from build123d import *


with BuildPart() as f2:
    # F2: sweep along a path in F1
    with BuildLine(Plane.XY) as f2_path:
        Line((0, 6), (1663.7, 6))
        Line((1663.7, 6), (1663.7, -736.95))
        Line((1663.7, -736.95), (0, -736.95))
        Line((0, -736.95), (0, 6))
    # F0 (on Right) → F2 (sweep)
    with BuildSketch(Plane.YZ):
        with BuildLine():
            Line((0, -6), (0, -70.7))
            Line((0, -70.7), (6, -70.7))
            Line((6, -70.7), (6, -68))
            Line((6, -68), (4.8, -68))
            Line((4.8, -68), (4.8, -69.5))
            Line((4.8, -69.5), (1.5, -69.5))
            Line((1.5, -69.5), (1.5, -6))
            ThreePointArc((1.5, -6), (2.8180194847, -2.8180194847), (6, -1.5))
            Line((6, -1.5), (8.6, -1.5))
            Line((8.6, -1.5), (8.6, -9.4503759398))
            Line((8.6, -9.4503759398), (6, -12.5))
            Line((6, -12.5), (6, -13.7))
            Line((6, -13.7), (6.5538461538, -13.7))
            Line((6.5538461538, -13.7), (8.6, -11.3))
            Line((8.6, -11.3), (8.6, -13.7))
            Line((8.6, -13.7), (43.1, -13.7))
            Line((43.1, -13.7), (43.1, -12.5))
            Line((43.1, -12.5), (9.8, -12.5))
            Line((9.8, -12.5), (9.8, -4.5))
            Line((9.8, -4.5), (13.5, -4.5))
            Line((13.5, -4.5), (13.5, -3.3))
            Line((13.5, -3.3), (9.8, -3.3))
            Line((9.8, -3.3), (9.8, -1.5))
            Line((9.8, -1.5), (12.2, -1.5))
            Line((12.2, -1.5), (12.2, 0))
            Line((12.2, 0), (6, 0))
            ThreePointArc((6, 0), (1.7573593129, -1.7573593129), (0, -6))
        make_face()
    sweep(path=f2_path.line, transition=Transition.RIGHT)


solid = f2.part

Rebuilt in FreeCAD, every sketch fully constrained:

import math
import FreeCAD as App
import Part
import Sketcher

doc = App.newDocument("Part")
params = doc.addObject("Spreadsheet::Sheet", "Params")
for row, (alias, value) in enumerate([
    ("sketch1_radius", "6 mm"),
    ("sketch1_radius2", "4.5 mm"),
    ("sketch1_height", "8 mm"),
    ("sketch1_width", "1.2 mm"),
    ("sketch1_width2", "2.6 mm"),
    ("sketch2_width", "1663.7 mm"),
    ("sketch2_height", "742.95 mm"),
], start=1):
    params.set(f"A{row}", alias)
    params.set(f"B{row}", "=" + value)
    params.setAlias(f"B{row}", alias)

body = doc.addObject("PartDesign::Body", "Body")

sketch1 = doc.addObject("Sketcher::SketchObject", "Sketch")
body.addObject(sketch1)
sketch1.AttachmentSupport = (doc.YZ_Plane, [""])
sketch1.MapMode = "FlatFace"
sketch1.addGeometry(Part.LineSegment(App.Vector(0, -6, 0), App.Vector(0, -70.7, 0)), False)
sketch1.addGeometry(Part.LineSegment(App.Vector(0, -70.7, 0), App.Vector(6, -70.7, 0)), False)
sketch1.addGeometry(Part.LineSegment(App.Vector(6, -70.7, 0), App.Vector(6, -68, 0)), False)
sketch1.addGeometry(Part.LineSegment(App.Vector(6, -68, 0), App.Vector(4.8, -68, 0)), False)
sketch1.addGeometry(Part.LineSegment(App.Vector(4.8, -68, 0), App.Vector(4.8, -69.5, 0)), False)
sketch1.addGeometry(Part.LineSegment(App.Vector(4.8, -69.5, 0), App.Vector(1.5, -69.5, 0)), False)
sketch1.addGeometry(Part.LineSegment(App.Vector(1.5, -69.5, 0), App.Vector(1.5, -6, 0)), False)
sketch1.addGeometry(Part.ArcOfCircle(Part.Circle(App.Vector(6, -6, 0), App.Vector(0, 0, 1), 4.5), math.radians(90), math.radians(180)), False)
sketch1.addGeometry(Part.LineSegment(App.Vector(6, -1.5, 0), App.Vector(8.6, -1.5, 0)), False)
sketch1.addGeometry(Part.LineSegment(App.Vector(8.6, -1.5, 0), App.Vector(8.6, -9.450376, 0)), False)
sketch1.addGeometry(Part.LineSegment(App.Vector(8.6, -9.450376, 0), App.Vector(6, -12.5, 0)), False)
sketch1.addGeometry(Part.LineSegment(App.Vector(6, -12.5, 0), App.Vector(6, -13.7, 0)), False)
sketch1.addGeometry(Part.LineSegment(App.Vector(6, -13.7, 0), App.Vector(6.553846, -13.7, 0)), False)
sketch1.addGeometry(Part.LineSegment(App.Vector(6.553846, -13.7, 0), App.Vector(8.6, -11.3, 0)), False)
sketch1.addGeometry(Part.LineSegment(App.Vector(8.6, -11.3, 0), App.Vector(8.6, -13.7, 0)), False)
sketch1.addGeometry(Part.LineSegment(App.Vector(8.6, -13.7, 0), App.Vector(43.1, -13.7, 0)), False)
sketch1.addGeometry(Part.LineSegment(App.Vector(43.1, -13.7, 0), App.Vector(43.1, -12.5, 0)), False)
sketch1.addGeometry(Part.LineSegment(App.Vector(43.1, -12.5, 0), App.Vector(9.8, -12.5, 0)), False)
sketch1.addGeometry(Part.LineSegment(App.Vector(9.8, -12.5, 0), App.Vector(9.8, -4.5, 0)), False)
sketch1.addGeometry(Part.LineSegment(App.Vector(9.8, -4.5, 0), App.Vector(13.5, -4.5, 0)), False)
sketch1.addGeometry(Part.LineSegment(App.Vector(13.5, -4.5, 0), App.Vector(13.5, -3.3, 0)), False)
sketch1.addGeometry(Part.LineSegment(App.Vector(13.5, -3.3, 0), App.Vector(9.8, -3.3, 0)), False)
sketch1.addGeometry(Part.LineSegment(App.Vector(9.8, -3.3, 0), App.Vector(9.8, -1.5, 0)), False)
sketch1.addGeometry(Part.LineSegment(App.Vector(9.8, -1.5, 0), App.Vector(12.2, -1.5, 0)), False)
sketch1.addGeometry(Part.LineSegment(App.Vector(12.2, -1.5, 0), App.Vector(12.2, 0, 0)), False)
sketch1.addGeometry(Part.LineSegment(App.Vector(12.2, 0, 0), App.Vector(6, 0, 0)), False)
sketch1.addGeometry(Part.ArcOfCircle(Part.Circle(App.Vector(6, -6, 0), App.Vector(0, 0, 1), 6), math.radians(90), math.radians(180)), False)
sketch1.addConstraint(Sketcher.Constraint("Coincident", 0, 2, 1, 1))
sketch1.addConstraint(Sketcher.Constraint("Coincident", 1, 2, 2, 1))
sketch1.addConstraint(Sketcher.Constraint("Coincident", 2, 2, 3, 1))
sketch1.addConstraint(Sketcher.Constraint("Coincident", 3, 2, 4, 1))
sketch1.addConstraint(Sketcher.Constraint("Coincident", 4, 2, 5, 1))
sketch1.addConstraint(Sketcher.Constraint("Coincident", 5, 2, 6, 1))
sketch1.addConstraint(Sketcher.Constraint("Tangent", 6, 2, 7, 2))
sketch1.addConstraint(Sketcher.Constraint("Tangent", 7, 1, 8, 1))
sketch1.addConstraint(Sketcher.Constraint("Coincident", 8, 2, 9, 1))
sketch1.addConstraint(Sketcher.Constraint("Coincident", 9, 2, 10, 1))
sketch1.addConstraint(Sketcher.Constraint("Coincident", 10, 2, 11, 1))
sketch1.addConstraint(Sketcher.Constraint("Coincident", 11, 2, 12, 1))
sketch1.addConstraint(Sketcher.Constraint("Coincident", 12, 2, 13, 1))
sketch1.addConstraint(Sketcher.Constraint("Coincident", 13, 2, 14, 1))
sketch1.addConstraint(Sketcher.Constraint("Coincident", 14, 2, 15, 1))
sketch1.addConstraint(Sketcher.Constraint("Coincident", 15, 2, 16, 1))
sketch1.addConstraint(Sketcher.Constraint("Coincident", 16, 2, 17, 1))
sketch1.addConstraint(Sketcher.Constraint("Coincident", 17, 2, 18, 1))
sketch1.addConstraint(Sketcher.Constraint("Coincident", 18, 2, 19, 1))
sketch1.addConstraint(Sketcher.Constraint("Coincident", 19, 2, 20, 1))
sketch1.addConstraint(Sketcher.Constraint("Coincident", 20, 2, 21, 1))
sketch1.addConstraint(Sketcher.Constraint("Coincident", 21, 2, 22, 1))
sketch1.addConstraint(Sketcher.Constraint("Coincident", 22, 2, 23, 1))
sketch1.addConstraint(Sketcher.Constraint("Coincident", 23, 2, 24, 1))
sketch1.addConstraint(Sketcher.Constraint("Coincident", 24, 2, 25, 1))
sketch1.addConstraint(Sketcher.Constraint("Tangent", 25, 2, 26, 1))
sketch1.addConstraint(Sketcher.Constraint("Tangent", 26, 2, 0, 1))
sketch1.addConstraint(Sketcher.Constraint("Vertical", 0))
sketch1.addConstraint(Sketcher.Constraint("Horizontal", 1))
sketch1.addConstraint(Sketcher.Constraint("Vertical", 2))
sketch1.addConstraint(Sketcher.Constraint("Horizontal", 3))
sketch1.addConstraint(Sketcher.Constraint("Vertical", 4))
sketch1.addConstraint(Sketcher.Constraint("Horizontal", 5))
sketch1.addConstraint(Sketcher.Constraint("Vertical", 6))
sketch1.addConstraint(Sketcher.Constraint("Horizontal", 8))
sketch1.addConstraint(Sketcher.Constraint("Vertical", 9))
sketch1.addConstraint(Sketcher.Constraint("Vertical", 11))
sketch1.addConstraint(Sketcher.Constraint("Horizontal", 12))
sketch1.addConstraint(Sketcher.Constraint("Vertical", 14))
sketch1.addConstraint(Sketcher.Constraint("Horizontal", 15))
sketch1.addConstraint(Sketcher.Constraint("Vertical", 16))
sketch1.addConstraint(Sketcher.Constraint("Horizontal", 17))
sketch1.addConstraint(Sketcher.Constraint("Vertical", 18))
sketch1.addConstraint(Sketcher.Constraint("Horizontal", 19))
sketch1.addConstraint(Sketcher.Constraint("Vertical", 20))
sketch1.addConstraint(Sketcher.Constraint("Horizontal", 21))
sketch1.addConstraint(Sketcher.Constraint("Vertical", 22))
sketch1.addConstraint(Sketcher.Constraint("Horizontal", 23))
sketch1.addConstraint(Sketcher.Constraint("Vertical", 24))
sketch1.addConstraint(Sketcher.Constraint("Horizontal", 25))
sketch1.addConstraint(Sketcher.Constraint("Coincident", 26, 3, 7, 3))
sketch1.addConstraint(Sketcher.Constraint("PointOnObject", 0, 2, -2))
sketch1.addConstraint(Sketcher.Constraint("PointOnObject", 24, 2, -1))
sketch1.addConstraint(Sketcher.Constraint("Parallel", 10, 13))
sketch1.addConstraint(Sketcher.Constraint("Horizontal", 12, 2, 14, 2))
sketch1.addConstraint(Sketcher.Constraint("Horizontal", 10, 2, 16, 2))
sketch1.addConstraint(Sketcher.Constraint("Horizontal", 8, 2, 22, 2))
sketch1.addConstraint(Sketcher.Constraint("Vertical", 26, 3, 1, 2))
sketch1.addConstraint(Sketcher.Constraint("Vertical", 7, 1, 10, 2))
sketch1.addConstraint(Sketcher.Constraint("Vertical", 9, 2, 13, 2))
sketch1.addConstraint(Sketcher.Constraint("Vertical", 18, 2, 21, 2))
sketch1.addConstraint(Sketcher.Constraint("Equal", 3, 11))
sketch1.addConstraint(Sketcher.Constraint("Equal", 23, 14))
sketch1.addConstraint(Sketcher.Constraint("Equal", 16, 20))
sketch1.addConstraint(Sketcher.Constraint("Equal", 4, 24))
sketch1.addConstraint(Sketcher.Constraint("Radius", 26, 6.0))
sketch1.addConstraint(Sketcher.Constraint("Radius", 7, 4.5))
sketch1.addConstraint(Sketcher.Constraint("DistanceY", 18, 1, 18, 2, 8.0))
sketch1.addConstraint(Sketcher.Constraint("DistanceX", 3, 2, 3, 1, 1.2))
sketch1.addConstraint(Sketcher.Constraint("DistanceX", 8, 1, 8, 2, 2.6))
sketch1.addConstraint(Sketcher.Constraint("DistanceX", 15, 1, 15, 2, 34.5))
sketch1.addConstraint(Sketcher.Constraint("DistanceX", 17, 2, 17, 1, 33.3))
sketch1.addConstraint(Sketcher.Constraint("DistanceX", 19, 1, 19, 2, 3.7))
sketch1.addConstraint(Sketcher.Constraint("DistanceX", 23, 1, 23, 2, 2.4))
sketch1.addConstraint(Sketcher.Constraint("DistanceY", 0, 2, 0, 1, 64.7))
sketch1.addConstraint(Sketcher.Constraint("DistanceY", 2, 1, 2, 2, 2.7))
sketch1.addConstraint(Sketcher.Constraint("DistanceY", 22, 1, 22, 2, 1.8))
sketch1.addConstraint(Sketcher.Constraint("Distance", 10, 4.007519))
sketch1.setExpression("Constraints[65]", "Params.sketch1_radius")
sketch1.setExpression("Constraints[66]", "Params.sketch1_radius2")
sketch1.setExpression("Constraints[67]", "Params.sketch1_height")
sketch1.setExpression("Constraints[68]", "Params.sketch1_width")
sketch1.setExpression("Constraints[69]", "Params.sketch1_width2")

sketch2 = doc.addObject("Sketcher::SketchObject", "Sketch001")
body.addObject(sketch2)
sketch2.AttachmentSupport = (doc.XY_Plane, [""])
sketch2.MapMode = "FlatFace"
sketch2.addGeometry(Part.LineSegment(App.Vector(0, 6, 0), App.Vector(1663.7, 6, 0)), False)
sketch2.addGeometry(Part.LineSegment(App.Vector(1663.7, 6, 0), App.Vector(1663.7, -736.95, 0)), False)
sketch2.addGeometry(Part.LineSegment(App.Vector(1663.7, -736.95, 0), App.Vector(0, -736.95, 0)), False)
sketch2.addGeometry(Part.LineSegment(App.Vector(0, -736.95, 0), App.Vector(0, 6, 0)), False)
sketch2.addConstraint(Sketcher.Constraint("Coincident", 0, 2, 1, 1))
sketch2.addConstraint(Sketcher.Constraint("Coincident", 1, 2, 2, 1))
sketch2.addConstraint(Sketcher.Constraint("Coincident", 2, 2, 3, 1))
sketch2.addConstraint(Sketcher.Constraint("Coincident", 3, 2, 0, 1))
sketch2.addConstraint(Sketcher.Constraint("Horizontal", 0))
sketch2.addConstraint(Sketcher.Constraint("Vertical", 1))
sketch2.addConstraint(Sketcher.Constraint("Horizontal", 2))
sketch2.addConstraint(Sketcher.Constraint("Vertical", 3))
sketch2.addConstraint(Sketcher.Constraint("PointOnObject", 2, 2, -2))
sketch2.addConstraint(Sketcher.Constraint("DistanceX", 0, 1, 0, 2, 1663.7))
sketch2.addConstraint(Sketcher.Constraint("DistanceY", -1, 1, 0, 2, 6.0))
sketch2.addConstraint(Sketcher.Constraint("DistanceY", 1, 2, 1, 1, 742.95))
sketch2.setExpression("Constraints[9]", "Params.sketch2_width")
sketch2.setExpression("Constraints[11]", "Params.sketch2_height")
doc.recompute()

additivepipe = doc.addObject("PartDesign::AdditivePipe", "AdditivePipe")
body.addObject(additivepipe)
additivepipe.Profile = sketch1
additivepipe.Spine = (sketch2, ["Edge1", "Edge2", "Edge3", "Edge4"])
additivepipe.Transition = "Right corner"

doc.recompute()
